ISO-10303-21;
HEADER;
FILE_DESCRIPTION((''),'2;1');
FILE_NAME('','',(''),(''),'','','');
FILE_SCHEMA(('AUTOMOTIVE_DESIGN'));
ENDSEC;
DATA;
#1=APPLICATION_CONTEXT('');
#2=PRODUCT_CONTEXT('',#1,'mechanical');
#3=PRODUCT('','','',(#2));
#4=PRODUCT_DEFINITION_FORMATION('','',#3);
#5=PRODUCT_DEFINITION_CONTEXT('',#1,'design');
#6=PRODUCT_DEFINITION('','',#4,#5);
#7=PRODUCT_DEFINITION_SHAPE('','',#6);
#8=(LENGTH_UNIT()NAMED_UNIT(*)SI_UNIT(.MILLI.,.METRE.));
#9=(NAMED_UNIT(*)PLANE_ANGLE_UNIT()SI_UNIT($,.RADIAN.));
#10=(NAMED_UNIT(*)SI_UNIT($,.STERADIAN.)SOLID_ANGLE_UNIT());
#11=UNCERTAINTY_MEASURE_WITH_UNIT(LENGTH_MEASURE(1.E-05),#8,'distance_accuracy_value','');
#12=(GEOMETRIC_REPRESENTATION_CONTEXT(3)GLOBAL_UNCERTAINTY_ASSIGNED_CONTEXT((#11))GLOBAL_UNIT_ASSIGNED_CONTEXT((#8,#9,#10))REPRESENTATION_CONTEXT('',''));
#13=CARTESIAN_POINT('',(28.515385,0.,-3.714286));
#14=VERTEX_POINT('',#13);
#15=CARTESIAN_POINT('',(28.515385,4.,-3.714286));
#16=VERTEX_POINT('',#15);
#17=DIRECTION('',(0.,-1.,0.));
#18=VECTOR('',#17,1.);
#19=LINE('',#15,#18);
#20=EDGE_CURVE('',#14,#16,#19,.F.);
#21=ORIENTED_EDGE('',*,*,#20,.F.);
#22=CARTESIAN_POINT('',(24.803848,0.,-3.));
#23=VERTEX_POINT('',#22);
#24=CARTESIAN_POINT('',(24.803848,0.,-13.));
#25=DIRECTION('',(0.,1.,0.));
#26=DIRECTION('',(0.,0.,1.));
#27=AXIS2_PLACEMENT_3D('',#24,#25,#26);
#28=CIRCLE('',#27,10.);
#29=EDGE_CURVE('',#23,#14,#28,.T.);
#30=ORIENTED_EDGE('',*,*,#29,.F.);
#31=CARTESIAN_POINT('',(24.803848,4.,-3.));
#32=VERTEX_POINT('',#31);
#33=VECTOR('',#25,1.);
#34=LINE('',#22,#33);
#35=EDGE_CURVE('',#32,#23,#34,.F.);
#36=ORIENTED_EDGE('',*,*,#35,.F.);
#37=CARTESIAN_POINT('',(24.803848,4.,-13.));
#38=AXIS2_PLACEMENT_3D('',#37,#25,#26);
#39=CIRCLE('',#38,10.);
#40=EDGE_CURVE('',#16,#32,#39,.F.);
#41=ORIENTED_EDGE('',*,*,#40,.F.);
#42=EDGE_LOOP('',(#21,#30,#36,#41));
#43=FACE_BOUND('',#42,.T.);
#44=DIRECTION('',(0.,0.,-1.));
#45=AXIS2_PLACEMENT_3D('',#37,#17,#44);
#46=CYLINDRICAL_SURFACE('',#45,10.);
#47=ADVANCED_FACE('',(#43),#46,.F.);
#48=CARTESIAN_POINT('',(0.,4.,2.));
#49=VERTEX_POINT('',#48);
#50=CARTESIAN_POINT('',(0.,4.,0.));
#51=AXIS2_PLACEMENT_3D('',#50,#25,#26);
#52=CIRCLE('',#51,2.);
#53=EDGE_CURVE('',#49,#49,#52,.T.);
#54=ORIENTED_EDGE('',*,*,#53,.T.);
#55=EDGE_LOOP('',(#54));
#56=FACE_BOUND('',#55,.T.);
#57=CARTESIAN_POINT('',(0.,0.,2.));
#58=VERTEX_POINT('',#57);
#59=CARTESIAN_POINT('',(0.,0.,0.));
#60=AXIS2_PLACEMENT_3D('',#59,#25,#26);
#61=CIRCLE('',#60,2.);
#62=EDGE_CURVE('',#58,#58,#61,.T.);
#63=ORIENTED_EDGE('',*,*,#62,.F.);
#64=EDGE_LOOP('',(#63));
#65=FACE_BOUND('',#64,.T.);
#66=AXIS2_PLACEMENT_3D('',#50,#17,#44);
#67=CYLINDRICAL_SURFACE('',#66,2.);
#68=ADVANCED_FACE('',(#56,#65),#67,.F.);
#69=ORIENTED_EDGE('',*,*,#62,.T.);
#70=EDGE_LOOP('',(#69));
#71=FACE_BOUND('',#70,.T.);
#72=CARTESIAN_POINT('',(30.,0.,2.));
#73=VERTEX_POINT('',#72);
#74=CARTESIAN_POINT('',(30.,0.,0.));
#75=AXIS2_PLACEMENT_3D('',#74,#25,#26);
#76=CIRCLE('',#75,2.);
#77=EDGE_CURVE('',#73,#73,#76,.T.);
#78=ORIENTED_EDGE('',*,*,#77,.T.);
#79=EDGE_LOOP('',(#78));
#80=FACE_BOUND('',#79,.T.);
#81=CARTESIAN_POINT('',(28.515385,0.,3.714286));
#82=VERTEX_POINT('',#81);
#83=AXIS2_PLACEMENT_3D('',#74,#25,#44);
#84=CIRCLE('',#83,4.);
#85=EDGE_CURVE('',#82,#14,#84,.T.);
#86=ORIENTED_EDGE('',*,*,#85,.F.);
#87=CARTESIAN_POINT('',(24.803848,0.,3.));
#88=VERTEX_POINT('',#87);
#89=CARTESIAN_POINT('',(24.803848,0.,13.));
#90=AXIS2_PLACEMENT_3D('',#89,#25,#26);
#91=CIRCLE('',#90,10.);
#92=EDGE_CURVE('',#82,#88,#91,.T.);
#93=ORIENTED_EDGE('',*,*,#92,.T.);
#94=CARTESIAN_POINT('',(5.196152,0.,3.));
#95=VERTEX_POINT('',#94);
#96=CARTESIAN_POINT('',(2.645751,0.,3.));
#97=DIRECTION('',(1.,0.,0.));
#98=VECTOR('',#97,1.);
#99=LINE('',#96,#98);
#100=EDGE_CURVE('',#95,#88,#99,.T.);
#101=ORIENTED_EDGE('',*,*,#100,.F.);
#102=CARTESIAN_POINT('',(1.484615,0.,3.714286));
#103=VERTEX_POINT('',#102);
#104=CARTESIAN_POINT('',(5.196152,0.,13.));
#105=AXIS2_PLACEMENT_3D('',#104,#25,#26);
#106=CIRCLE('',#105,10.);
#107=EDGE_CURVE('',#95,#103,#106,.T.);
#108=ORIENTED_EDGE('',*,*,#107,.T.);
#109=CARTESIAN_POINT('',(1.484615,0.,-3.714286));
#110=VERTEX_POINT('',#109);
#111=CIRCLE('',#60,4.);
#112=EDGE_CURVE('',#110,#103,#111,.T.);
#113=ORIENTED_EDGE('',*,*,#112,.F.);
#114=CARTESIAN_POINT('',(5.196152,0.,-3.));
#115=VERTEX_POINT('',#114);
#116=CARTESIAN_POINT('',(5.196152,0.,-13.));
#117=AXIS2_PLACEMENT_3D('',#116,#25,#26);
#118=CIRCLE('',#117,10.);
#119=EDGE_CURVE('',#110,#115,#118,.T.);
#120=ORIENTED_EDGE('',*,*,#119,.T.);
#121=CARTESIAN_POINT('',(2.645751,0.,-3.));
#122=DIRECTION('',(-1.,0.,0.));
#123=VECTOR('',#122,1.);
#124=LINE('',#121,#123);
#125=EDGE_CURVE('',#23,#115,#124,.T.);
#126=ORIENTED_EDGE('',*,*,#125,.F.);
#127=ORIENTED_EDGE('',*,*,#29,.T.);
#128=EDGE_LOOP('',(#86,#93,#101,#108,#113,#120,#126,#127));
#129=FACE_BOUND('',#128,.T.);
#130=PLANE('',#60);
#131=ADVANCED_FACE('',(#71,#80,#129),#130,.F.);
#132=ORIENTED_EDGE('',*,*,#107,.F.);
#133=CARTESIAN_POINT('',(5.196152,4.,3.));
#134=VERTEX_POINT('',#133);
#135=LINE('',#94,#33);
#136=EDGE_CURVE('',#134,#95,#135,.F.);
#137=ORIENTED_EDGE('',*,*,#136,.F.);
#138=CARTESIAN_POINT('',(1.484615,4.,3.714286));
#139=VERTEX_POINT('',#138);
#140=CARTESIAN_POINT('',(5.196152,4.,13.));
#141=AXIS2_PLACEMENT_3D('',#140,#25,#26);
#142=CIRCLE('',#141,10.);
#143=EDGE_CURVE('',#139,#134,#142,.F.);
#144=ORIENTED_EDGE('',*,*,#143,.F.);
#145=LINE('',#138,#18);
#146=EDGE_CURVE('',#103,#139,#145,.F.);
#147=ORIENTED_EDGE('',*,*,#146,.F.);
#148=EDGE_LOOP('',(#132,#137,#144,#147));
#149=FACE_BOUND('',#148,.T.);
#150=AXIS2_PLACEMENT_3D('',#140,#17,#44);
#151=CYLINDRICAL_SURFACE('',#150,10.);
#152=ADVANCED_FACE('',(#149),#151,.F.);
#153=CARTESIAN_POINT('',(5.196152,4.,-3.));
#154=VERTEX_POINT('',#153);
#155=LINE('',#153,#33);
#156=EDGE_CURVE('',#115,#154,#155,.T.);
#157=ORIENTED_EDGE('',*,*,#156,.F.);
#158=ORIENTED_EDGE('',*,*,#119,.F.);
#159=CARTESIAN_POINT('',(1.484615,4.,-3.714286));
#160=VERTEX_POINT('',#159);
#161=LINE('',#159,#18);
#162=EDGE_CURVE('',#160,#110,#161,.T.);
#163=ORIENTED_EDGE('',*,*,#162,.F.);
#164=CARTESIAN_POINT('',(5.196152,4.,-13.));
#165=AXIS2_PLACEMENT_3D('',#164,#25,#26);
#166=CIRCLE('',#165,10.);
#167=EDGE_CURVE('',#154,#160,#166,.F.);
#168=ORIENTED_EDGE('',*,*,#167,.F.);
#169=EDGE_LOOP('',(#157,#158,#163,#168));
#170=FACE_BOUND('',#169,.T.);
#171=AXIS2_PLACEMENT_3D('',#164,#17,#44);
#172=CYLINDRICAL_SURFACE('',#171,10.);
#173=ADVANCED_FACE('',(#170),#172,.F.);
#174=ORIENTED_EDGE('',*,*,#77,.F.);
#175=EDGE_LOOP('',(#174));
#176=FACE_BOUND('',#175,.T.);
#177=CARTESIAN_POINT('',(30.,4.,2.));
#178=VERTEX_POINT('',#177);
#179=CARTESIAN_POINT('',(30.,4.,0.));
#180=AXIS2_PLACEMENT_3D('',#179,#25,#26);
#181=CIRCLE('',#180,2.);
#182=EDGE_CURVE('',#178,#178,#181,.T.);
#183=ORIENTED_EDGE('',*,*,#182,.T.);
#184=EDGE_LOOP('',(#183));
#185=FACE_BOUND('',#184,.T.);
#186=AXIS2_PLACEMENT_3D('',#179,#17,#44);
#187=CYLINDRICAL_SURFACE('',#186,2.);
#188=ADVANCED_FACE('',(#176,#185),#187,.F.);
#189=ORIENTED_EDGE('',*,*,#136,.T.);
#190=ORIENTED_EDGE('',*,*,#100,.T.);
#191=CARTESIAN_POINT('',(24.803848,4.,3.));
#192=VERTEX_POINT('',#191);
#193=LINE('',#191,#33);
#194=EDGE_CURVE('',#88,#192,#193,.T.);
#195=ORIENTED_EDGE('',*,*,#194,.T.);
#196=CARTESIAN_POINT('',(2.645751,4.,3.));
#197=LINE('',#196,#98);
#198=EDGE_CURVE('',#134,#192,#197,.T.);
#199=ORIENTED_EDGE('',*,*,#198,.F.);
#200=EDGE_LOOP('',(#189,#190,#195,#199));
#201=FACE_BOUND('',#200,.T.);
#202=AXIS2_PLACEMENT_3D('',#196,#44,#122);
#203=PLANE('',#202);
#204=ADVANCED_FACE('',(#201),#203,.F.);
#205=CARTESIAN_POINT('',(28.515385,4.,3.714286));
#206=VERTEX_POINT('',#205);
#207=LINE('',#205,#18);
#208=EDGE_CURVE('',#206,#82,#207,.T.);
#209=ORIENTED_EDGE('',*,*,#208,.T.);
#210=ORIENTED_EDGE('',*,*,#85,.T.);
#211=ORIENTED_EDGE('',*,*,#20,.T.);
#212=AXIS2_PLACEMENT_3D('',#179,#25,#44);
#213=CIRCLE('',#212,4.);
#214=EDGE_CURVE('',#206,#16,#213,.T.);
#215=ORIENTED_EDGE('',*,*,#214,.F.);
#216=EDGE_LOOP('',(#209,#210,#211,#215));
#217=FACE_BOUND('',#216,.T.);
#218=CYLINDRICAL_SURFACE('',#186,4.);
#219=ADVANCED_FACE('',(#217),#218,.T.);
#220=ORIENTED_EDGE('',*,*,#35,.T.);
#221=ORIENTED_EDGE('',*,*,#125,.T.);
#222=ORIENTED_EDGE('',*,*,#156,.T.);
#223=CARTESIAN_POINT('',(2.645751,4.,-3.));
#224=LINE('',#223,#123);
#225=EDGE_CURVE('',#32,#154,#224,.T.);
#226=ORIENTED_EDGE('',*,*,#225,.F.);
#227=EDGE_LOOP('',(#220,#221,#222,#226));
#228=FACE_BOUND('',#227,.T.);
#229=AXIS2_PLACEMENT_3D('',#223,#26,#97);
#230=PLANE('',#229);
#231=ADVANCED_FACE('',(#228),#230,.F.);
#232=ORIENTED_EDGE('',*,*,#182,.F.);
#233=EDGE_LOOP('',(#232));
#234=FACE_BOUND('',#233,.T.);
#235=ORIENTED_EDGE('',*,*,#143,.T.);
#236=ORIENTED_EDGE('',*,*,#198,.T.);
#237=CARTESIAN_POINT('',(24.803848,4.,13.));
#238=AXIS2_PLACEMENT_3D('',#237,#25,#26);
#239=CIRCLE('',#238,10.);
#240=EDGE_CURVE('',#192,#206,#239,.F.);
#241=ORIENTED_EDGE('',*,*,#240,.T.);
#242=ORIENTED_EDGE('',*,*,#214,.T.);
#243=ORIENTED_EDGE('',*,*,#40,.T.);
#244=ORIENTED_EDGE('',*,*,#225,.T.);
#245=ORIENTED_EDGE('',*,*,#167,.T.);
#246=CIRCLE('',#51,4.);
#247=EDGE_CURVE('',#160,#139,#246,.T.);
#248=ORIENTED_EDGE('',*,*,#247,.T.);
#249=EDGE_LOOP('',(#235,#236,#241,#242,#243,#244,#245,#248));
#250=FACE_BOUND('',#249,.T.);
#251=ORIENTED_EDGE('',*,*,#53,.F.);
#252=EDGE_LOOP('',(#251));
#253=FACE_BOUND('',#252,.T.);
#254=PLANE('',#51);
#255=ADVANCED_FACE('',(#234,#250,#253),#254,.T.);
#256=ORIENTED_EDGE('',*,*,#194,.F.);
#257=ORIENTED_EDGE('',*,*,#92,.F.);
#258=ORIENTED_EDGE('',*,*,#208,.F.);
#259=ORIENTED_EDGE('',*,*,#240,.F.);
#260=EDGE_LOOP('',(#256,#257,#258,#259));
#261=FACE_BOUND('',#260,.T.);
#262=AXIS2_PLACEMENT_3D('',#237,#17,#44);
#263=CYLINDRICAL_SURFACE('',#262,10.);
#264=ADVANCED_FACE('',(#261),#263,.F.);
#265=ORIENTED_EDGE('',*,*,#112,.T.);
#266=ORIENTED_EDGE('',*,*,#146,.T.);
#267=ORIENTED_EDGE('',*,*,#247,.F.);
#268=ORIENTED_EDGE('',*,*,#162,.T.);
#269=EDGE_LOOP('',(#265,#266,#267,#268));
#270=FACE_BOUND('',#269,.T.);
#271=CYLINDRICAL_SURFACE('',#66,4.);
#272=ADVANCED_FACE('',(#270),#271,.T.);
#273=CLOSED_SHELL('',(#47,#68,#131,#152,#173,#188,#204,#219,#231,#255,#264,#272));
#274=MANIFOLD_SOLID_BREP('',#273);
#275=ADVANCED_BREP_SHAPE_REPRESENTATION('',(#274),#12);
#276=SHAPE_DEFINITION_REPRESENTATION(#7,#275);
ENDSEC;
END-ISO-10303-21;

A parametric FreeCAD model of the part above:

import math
import FreeCAD as App
import Part
import Sketcher
from FreeCAD import Vector
Q = App.Units.Quantity


def edges_at(feature, points):
    """Names of the edges that pass closest to the given points."""
    edges = feature.Shape.Edges
    near = lambda p: min(range(len(edges)), key=lambda i: edges[i].distToShape(Part.Vertex(*p))[0])
    return sorted({f"Edge{near(p) + 1}" for p in points})

doc = App.newDocument("Part")
body = doc.addObject("PartDesign::Body", "Body")

# Sketch on XZ plane
sketch1 = body.newObject("Sketcher::SketchObject", "Sketch")
sketch1.AttachmentSupport = (doc.getObject("XZ_Plane"), [""])
sketch1.MapMode = "FlatFace"
sketch1.addGeometry([
    Part.LineSegment(Vector(27.354249, -3, 0), Vector(2.645751, -3, 0)),  # 0
    Part.ArcOfCircle(Part.Circle(Vector(0, 0, 0), Vector(0, 0, 1), 4), math.radians(48.590378), math.radians(311.409622)),  # 1
    Part.LineSegment(Vector(2.645751, 3, 0), Vector(27.354249, 3, 0)),  # 2
    Part.ArcOfCircle(Part.Circle(Vector(30, 0, 0), Vector(0, 0, 1), 4), math.radians(-131.409622), math.radians(131.409622)),  # 3
    Part.Circle(Vector(30, 0, 0), Vector(0, 0, 1), 2),  # 4
    Part.Circle(Vector(0, 0, 0), Vector(0, 0, 1), 2),  # 5
], False)
sketch1.addConstraint([
    Sketcher.Constraint("Coincident", 0, 2, 1, 2),
    Sketcher.Constraint("Coincident", 1, 1, 2, 1),
    Sketcher.Constraint("Coincident", 2, 2, 3, 2),
    Sketcher.Constraint("Coincident", 3, 1, 0, 1),
    Sketcher.Constraint("Horizontal", 0),
    Sketcher.Constraint("Horizontal", 2),
    Sketcher.Constraint("Coincident", 1, 3, -1, 1),
    Sketcher.Constraint("Coincident", 5, 3, -1, 1),
    Sketcher.Constraint("Coincident", 4, 3, 3, 3),
    Sketcher.Constraint("Equal", 1, 3),
    Sketcher.Constraint("Equal", 4, 5),
    Sketcher.Constraint("Symmetric", 2, 2, 3, 1, -1),
    Sketcher.Constraint("Diameter", 4, Q("4 mm")),
    Sketcher.Constraint("Radius", 1, Q("4 mm")),
    Sketcher.Constraint("DistanceX", -1, 1, 3, 3, Q("30 mm")),
    Sketcher.Constraint("DistanceY", 0, 2, -1, 1, Q("3 mm")),
])
pad1 = body.newObject("PartDesign::Pad", "Pad")
pad1.Profile = sketch1
pad1.Length = 4
pad1.Reversed = True
doc.recompute()

fillet = body.newObject("PartDesign::Fillet", "Fillet")
fillet.Base = (pad1, edges_at(pad1, [
    (2.646, 2, -3),
    (27.354, 2, -3),
    (27.354, 2, 3),
    (2.646, 2, 3),
]))
fillet.Radius = 10

doc.recompute()
